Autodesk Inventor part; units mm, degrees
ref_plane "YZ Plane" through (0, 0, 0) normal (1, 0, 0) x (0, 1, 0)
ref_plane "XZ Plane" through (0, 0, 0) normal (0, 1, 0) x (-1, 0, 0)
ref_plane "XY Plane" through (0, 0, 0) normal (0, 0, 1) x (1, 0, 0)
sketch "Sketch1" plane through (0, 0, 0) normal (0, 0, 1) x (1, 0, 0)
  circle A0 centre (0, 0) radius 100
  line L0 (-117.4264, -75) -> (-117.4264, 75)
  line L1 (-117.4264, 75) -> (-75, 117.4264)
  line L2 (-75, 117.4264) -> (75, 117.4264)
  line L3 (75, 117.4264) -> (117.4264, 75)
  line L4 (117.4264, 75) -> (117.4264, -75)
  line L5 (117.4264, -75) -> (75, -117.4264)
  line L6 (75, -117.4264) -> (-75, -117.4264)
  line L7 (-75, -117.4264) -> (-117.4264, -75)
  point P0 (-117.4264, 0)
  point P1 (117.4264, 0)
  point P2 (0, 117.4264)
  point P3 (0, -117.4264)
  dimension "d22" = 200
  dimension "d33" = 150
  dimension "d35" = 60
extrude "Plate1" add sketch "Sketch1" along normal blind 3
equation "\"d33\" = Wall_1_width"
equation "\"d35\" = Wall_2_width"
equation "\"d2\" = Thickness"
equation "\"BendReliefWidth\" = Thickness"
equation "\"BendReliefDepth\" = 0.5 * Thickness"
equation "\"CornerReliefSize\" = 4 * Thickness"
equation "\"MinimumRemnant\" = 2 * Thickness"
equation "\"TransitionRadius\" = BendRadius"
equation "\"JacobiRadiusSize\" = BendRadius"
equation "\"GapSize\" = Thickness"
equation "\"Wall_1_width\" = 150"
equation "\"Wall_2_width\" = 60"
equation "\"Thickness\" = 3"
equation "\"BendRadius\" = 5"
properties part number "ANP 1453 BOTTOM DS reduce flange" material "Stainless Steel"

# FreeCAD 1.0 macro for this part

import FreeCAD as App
import Part
import Sketcher


def add_polygon(sketch, points):
    """Adds a closed chain of lines whose ends are joined by coincident constraints."""
    first, n = sketch.GeometryCount, len(points)
    for a, b in zip(points, points[1:] + points[:1]):
        sketch.addGeometry(Part.LineSegment(App.Vector(*a, 0), App.Vector(*b, 0)), False)
    for i in range(n):
        sketch.addConstraint(Sketcher.Constraint("Coincident", first + i, 2, first + (i + 1) % n, 1))

doc = App.newDocument("Part")
body = doc.addObject("PartDesign::Body", "Body")

# Sketch on XY plane
sketch1 = doc.addObject("Sketcher::SketchObject", "Sketch")
body.addObject(sketch1)
sketch1.AttachmentSupport = (doc.XY_Plane, [""])
sketch1.MapMode = "FlatFace"
add_polygon(sketch1, [(-117, 75), (-117, -75), (-75, -117), (75, -117), (117, -75), (117, 75), (75, 117), (-75, 117)])  # lines 0-7
sketch1.addGeometry(Part.Circle(App.Vector(0, 0, 0), App.Vector(0, 0, 1), 100), False)  # 8
sketch1.addConstraint([
    Sketcher.Constraint("Vertical", 0),
    Sketcher.Constraint("Horizontal", 2),
    Sketcher.Constraint("Vertical", 4),
    Sketcher.Constraint("Horizontal", 6),
    Sketcher.Constraint("Coincident", 8, 3, -1, 1),
    Sketcher.Constraint("Symmetric", 0, 2, 4, 2, -1, 1),
    Sketcher.Constraint("Symmetric", 1, 2, 5, 2, -1, 1),
    Sketcher.Constraint("Perpendicular", 1, 3),
    Sketcher.Constraint("Perpendicular", 5, 7),
    Sketcher.Constraint("Horizontal", 0, 2, 3, 2),
    Sketcher.Constraint("Horizontal", 4, 2, 7, 2),
    Sketcher.Constraint("Vertical", 2, 2, 5, 2),
    Sketcher.Constraint("Equal", 6, 0),
    Sketcher.Constraint("Diameter", 8, 200.0),
    Sketcher.Constraint("DistanceX", 2, 1, 2, 2, 150.0),
    Sketcher.Constraint("Distance", 1, 60.0),
])
pad1 = doc.addObject("PartDesign::Pad", "Pad")
body.addObject(pad1)
pad1.Profile = sketch1
pad1.Length = 3

doc.recompute()
